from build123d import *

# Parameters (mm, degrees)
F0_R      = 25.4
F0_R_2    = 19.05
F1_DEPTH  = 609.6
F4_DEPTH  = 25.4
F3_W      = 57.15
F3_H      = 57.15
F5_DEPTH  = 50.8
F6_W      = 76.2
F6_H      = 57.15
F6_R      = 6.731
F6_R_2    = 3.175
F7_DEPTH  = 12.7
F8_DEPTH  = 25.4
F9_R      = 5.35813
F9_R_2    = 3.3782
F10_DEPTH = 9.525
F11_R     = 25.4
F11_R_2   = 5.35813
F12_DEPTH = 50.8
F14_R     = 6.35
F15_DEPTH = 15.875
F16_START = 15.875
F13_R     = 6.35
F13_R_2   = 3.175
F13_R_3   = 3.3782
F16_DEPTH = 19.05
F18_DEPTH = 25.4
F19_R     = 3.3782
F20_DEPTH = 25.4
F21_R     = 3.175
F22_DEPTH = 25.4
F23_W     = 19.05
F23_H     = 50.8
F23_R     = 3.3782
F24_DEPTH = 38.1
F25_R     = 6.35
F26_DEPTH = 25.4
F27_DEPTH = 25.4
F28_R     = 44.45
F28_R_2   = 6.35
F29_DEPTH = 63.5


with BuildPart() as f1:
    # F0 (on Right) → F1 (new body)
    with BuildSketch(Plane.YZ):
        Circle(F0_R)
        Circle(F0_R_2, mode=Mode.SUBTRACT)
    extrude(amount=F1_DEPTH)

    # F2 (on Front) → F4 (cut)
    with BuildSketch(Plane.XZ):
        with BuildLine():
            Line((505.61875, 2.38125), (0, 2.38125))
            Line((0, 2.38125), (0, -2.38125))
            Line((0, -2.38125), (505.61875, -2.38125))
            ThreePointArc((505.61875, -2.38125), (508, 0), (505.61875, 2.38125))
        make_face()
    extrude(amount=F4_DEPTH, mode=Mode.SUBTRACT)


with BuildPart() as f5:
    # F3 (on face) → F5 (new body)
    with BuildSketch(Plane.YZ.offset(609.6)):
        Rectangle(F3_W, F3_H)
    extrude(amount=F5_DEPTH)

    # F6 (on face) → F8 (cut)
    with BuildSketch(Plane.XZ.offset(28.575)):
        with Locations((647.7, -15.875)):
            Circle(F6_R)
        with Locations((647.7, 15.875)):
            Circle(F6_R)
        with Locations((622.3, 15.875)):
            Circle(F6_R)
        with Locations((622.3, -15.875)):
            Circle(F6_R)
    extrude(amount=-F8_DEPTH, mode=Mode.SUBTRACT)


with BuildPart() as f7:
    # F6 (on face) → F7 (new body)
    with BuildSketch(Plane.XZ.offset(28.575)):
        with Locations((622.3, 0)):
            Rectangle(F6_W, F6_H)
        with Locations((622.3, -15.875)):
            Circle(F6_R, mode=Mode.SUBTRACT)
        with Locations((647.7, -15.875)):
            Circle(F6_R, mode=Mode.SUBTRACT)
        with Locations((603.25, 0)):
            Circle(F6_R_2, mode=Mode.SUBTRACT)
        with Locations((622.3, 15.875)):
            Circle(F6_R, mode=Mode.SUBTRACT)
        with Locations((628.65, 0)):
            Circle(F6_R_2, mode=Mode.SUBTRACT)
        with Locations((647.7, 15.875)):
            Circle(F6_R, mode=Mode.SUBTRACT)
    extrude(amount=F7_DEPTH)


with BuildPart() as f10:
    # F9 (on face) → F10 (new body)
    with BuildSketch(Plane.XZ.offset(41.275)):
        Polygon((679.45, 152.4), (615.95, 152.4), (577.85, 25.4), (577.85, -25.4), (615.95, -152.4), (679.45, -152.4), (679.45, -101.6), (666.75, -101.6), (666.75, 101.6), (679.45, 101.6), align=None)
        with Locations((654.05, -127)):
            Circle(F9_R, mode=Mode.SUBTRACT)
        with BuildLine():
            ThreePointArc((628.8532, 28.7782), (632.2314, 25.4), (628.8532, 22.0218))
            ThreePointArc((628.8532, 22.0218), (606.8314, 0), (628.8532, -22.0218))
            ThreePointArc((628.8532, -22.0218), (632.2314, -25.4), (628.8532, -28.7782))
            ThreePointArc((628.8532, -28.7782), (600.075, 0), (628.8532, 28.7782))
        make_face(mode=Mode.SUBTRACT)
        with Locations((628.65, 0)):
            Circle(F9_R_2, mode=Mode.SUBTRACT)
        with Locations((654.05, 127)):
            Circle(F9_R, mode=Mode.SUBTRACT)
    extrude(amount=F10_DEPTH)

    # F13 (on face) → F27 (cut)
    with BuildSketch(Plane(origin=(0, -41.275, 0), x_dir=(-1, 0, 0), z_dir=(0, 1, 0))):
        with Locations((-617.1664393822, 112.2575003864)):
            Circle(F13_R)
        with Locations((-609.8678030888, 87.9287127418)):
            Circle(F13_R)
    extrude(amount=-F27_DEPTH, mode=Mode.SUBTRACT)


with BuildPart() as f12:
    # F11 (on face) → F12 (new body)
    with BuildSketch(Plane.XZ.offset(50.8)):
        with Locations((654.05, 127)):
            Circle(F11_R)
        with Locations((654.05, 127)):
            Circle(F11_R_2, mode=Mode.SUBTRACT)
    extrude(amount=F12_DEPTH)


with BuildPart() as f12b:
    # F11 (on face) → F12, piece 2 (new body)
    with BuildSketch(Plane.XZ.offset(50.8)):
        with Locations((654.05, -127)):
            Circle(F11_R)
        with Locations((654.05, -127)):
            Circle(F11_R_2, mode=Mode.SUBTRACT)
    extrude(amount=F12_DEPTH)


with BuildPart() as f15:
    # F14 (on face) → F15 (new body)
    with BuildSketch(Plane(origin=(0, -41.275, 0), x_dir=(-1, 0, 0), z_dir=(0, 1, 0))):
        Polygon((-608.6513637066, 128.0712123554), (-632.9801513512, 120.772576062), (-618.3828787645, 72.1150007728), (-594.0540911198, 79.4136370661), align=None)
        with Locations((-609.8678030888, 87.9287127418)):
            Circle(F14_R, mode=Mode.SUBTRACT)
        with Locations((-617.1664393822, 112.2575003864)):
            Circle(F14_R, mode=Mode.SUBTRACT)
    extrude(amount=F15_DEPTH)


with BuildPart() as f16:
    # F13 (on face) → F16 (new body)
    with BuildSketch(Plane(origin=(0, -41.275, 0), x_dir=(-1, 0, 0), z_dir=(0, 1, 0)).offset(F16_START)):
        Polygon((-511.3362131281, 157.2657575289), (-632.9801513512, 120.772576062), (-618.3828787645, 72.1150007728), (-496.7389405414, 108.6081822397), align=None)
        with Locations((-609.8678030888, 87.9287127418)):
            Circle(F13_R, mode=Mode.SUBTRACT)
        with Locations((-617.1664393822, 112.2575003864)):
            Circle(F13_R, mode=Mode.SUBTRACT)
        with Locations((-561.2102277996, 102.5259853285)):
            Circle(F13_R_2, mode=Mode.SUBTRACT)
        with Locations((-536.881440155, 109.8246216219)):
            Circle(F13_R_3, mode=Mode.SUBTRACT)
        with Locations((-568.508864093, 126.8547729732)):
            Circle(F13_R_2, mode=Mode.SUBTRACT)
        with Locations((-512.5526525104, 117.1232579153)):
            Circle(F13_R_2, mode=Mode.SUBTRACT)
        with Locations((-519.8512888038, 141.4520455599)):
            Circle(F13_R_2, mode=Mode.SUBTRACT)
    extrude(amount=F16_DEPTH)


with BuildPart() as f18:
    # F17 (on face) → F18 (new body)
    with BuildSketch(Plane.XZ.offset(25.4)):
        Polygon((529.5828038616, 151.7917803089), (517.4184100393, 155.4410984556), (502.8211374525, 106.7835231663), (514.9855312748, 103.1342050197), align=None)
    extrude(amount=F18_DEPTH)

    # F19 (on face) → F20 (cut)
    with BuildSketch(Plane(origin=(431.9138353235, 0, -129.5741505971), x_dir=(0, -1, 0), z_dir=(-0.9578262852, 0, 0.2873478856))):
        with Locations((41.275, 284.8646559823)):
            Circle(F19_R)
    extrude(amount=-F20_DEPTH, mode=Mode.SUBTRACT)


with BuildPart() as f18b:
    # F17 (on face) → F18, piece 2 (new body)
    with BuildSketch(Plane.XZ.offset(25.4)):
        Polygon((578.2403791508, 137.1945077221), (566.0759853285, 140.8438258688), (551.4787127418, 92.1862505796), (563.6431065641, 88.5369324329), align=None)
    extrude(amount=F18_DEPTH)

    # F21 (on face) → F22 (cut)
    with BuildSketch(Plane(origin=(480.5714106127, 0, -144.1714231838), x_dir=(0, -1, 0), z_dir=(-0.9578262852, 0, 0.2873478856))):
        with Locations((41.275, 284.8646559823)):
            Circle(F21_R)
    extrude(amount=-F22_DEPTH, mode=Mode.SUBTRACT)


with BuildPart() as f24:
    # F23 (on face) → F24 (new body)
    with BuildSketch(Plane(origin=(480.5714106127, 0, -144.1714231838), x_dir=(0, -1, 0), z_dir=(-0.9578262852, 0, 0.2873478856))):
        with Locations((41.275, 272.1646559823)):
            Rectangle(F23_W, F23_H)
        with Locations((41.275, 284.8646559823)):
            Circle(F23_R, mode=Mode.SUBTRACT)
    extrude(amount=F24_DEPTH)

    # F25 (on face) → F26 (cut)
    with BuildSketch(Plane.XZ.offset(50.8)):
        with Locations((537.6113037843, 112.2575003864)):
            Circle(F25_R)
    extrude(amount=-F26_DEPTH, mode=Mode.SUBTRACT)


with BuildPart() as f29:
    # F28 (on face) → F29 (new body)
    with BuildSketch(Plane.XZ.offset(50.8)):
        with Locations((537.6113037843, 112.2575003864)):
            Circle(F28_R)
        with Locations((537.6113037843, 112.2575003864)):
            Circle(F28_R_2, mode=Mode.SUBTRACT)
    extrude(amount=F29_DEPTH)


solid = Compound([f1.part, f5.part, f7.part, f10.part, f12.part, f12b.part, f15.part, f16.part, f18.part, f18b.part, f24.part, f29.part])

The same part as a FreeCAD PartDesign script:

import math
import FreeCAD as App
import Part
import Sketcher
Q = App.Units.Quantity

doc = App.newDocument("Part")
body = doc.addObject("PartDesign::Body", "Body")

sketch1 = doc.addObject("Sketcher::SketchObject", "Sketch")
body.addObject(sketch1)
sketch1.AttachmentSupport = (doc.YZ_Plane, [""])
sketch1.MapMode = "FlatFace"
sketch1.addGeometry([
    Part.Circle(App.Vector(0, 0, 0), App.Vector(0, 0, 1), 25),
    Part.Circle(App.Vector(0, 0, 0), App.Vector(0, 0, 1), 19),
], False)
sketch1.addConstraint([
    Sketcher.Constraint("Coincident", 0, 3, -1, 1),
    Sketcher.Constraint("Coincident", 1, 3, -1, 1),
    Sketcher.Constraint("Diameter", 0, Q("2 in")),
    Sketcher.Constraint("Diameter", 1, Q("1.5 in")),
])
pad1 = doc.addObject("PartDesign::Pad", "Pad")
body.addObject(pad1)
pad1.Profile = sketch1
pad1.Length = Q("24 in")

sketch2 = doc.addObject("Sketcher::SketchObject", "Sketch001")
body.addObject(sketch2)
sketch2.AttachmentSupport = (doc.XZ_Plane, [""])
sketch2.MapMode = "FlatFace"
sketch2.addGeometry([
    Part.LineSegment(App.Vector(505.6, 2.4, 0), App.Vector(0, 2.4, 0)),
    Part.LineSegment(App.Vector(0, 2.4, 0), App.Vector(0, -2.4, 0)),
    Part.LineSegment(App.Vector(0, -2.4, 0), App.Vector(505.6, -2.4, 0)),
    Part.ArcOfCircle(Part.Circle(App.Vector(505.6, 0, 0), App.Vector(0, 0, 1), 2.4), math.radians(-90), math.radians(90)),
], False)
sketch2.addConstraint([
    Sketcher.Constraint("Coincident", 0, 2, 1, 1),
    Sketcher.Constraint("Coincident", 1, 2, 2, 1),
    Sketcher.Constraint("Tangent", 2, 2, 3, 1),
    Sketcher.Constraint("Tangent", 3, 2, 0, 1),
    Sketcher.Constraint("Horizontal", 0),
    Sketcher.Constraint("Vertical", 1),
    Sketcher.Constraint("Horizontal", 2),
    Sketcher.Constraint("Symmetric", 0, 2, 1, 2, -1, 1),
    Sketcher.Constraint("Radius", 3, Q("0.09375 in")),
    Sketcher.Constraint("DistanceX", 0, 2, 0, 1, Q("19.90625 in")),
])
pocket1 = doc.addObject("PartDesign::Pocket", "Pocket")
body.addObject(pocket1)
pocket1.Profile = sketch2
pocket1.Length = Q("1 in")
pocket1.Reversed = True
body2 = doc.addObject("PartDesign::Body", "Body001")

sketch3 = doc.addObject("Sketcher::SketchObject", "Sketch002")
body2.addObject(sketch3)
sketch3.AttachmentSupport = (doc.getObject("YZ_Plane001"), [""])
sketch3.MapMode = "FlatFace"
sketch3.AttachmentOffset = App.Placement(App.Vector(0, 0, 24 * 25.4), App.Rotation())
sketch3.addGeometry([
    Part.LineSegment(App.Vector(-29, 29, 0), App.Vector(-29, -29, 0)),
    Part.LineSegment(App.Vector(-29, -29, 0), App.Vector(29, -29, 0)),
    Part.LineSegment(App.Vector(29, -29, 0), App.Vector(29, 29, 0)),
    Part.LineSegment(App.Vector(29, 29, 0), App.Vector(-29, 29, 0)),
], False)
sketch3.addConstraint([
    Sketcher.Constraint("Coincident", 0, 2, 1, 1),
    Sketcher.Constraint("Coincident", 1, 2, 2, 1),
    Sketcher.Constraint("Coincident", 2, 2, 3, 1),
    Sketcher.Constraint("Coincident", 3, 2, 0, 1),
    Sketcher.Constraint("Vertical", 0),
    Sketcher.Constraint("Horizontal", 1),
    Sketcher.Constraint("Vertical", 2),
    Sketcher.Constraint("Horizontal", 3),
    Sketcher.Constraint("Symmetric", 0, 2, 2, 2, -1, 1),
    Sketcher.Constraint("Equal", 3, 0),
    Sketcher.Constraint("DistanceX", 1, 1, 1, 2, Q("2.25 in")),
])
pad2 = doc.addObject("PartDesign::Pad", "Pad001")
body2.addObject(pad2)
pad2.Profile = sketch3
pad2.Length = Q("2 in")

sketch4 = doc.addObject("Sketcher::SketchObject", "Sketch003")
body2.addObject(sketch4)
sketch4.AttachmentSupport = (doc.getObject("XZ_Plane001"), [""])
sketch4.MapMode = "FlatFace"
sketch4.AttachmentOffset = App.Placement(App.Vector(0, 0, 1.125 * 25.4), App.Rotation())
sketch4.addGeometry([
    Part.Circle(App.Vector(648, -16, 0), App.Vector(0, 0, 1), 7),
    Part.Circle(App.Vector(648, 16, 0), App.Vector(0, 0, 1), 7),
    Part.Circle(App.Vector(622, 16, 0), App.Vector(0, 0, 1), 7),
    Part.Circle(App.Vector(622, -16, 0), App.Vector(0, 0, 1), 7),
], False)
sketch4.addConstraint([
    Sketcher.Constraint("Equal", 0, 1),
    Sketcher.Constraint("Equal", 1, 2),
    Sketcher.Constraint("Equal", 2, 3),
    Sketcher.Constraint("Symmetric", 0, 3, 1, 3, -1),
    Sketcher.Constraint("Symmetric", 2, 3, 3, 3, -1),
    Sketcher.Constraint("Horizontal", 1, 3, 2, 3),
    Sketcher.Constraint("Diameter", 0, Q("0.53 in")),
    Sketcher.Constraint("DistanceX", 2, 3, 1, 3, Q("1 in")),
    Sketcher.Constraint("DistanceX", -1, 1, 0, 3, Q("25.5 in")),
    Sketcher.Constraint("DistanceY", 0, 3, 1, 3, Q("1.25 in")),
])
pocket2 = doc.addObject("PartDesign::Pocket", "Pocket001")
body2.addObject(pocket2)
pocket2.Profile = sketch4
pocket2.Length = Q("1 in")
body3 = doc.addObject("PartDesign::Body", "Body002")

sketch5 = doc.addObject("Sketcher::SketchObject", "Sketch004")
body3.addObject(sketch5)
sketch5.AttachmentSupport = (doc.getObject("XZ_Plane002"), [""])
sketch5.MapMode = "FlatFace"
sketch5.AttachmentOffset = App.Placement(App.Vector(0, 0, 1.125 * 25.4), App.Rotation())
sketch5.addGeometry([
    Part.LineSegment(App.Vector(584.2, 28.6, 0), App.Vector(584.2, -28.6, 0)),
    Part.LineSegment(App.Vector(584.2, -28.6, 0), App.Vector(660.4, -28.6, 0)),
    Part.LineSegment(App.Vector(660.4, -28.6, 0), App.Vector(660.4, 28.6, 0)),
    Part.LineSegment(App.Vector(660.4, 28.6, 0), App.Vector(584.2, 28.6, 0)),
    Part.Circle(App.Vector(622.3, -15.9, 0), App.Vector(0, 0, 1), 6.7),
    Part.Circle(App.Vector(647.7, -15.9, 0), App.Vector(0, 0, 1), 6.7),
    Part.Circle(App.Vector(603.2, 0, 0), App.Vector(0, 0, 1), 3.2),
    Part.Circle(App.Vector(622.3, 15.9, 0), App.Vector(0, 0, 1), 6.7),
    Part.Circle(App.Vector(628.6, 0, 0), App.Vector(0, 0, 1), 3.2),
    Part.Circle(App.Vector(647.7, 15.9, 0), App.Vector(0, 0, 1), 6.7),
], False)
sketch5.addConstraint([
    Sketcher.Constraint("Coincident", 0, 2, 1, 1),
    Sketcher.Constraint("Coincident", 1, 2, 2, 1),
    Sketcher.Constraint("Coincident", 2, 2, 3, 1),
    Sketcher.Constraint("Coincident", 3, 2, 0, 1),
    Sketcher.Constraint("Vertical", 0),
    Sketcher.Constraint("Horizontal", 1),
    Sketcher.Constraint("Vertical", 2),
    Sketcher.Constraint("Horizontal", 3),
    Sketcher.Constraint("Equal", 4, 5),
    Sketcher.Constraint("Equal", 5, 7),
    Sketcher.Constraint("Equal", 6, 8),
    Sketcher.Constraint("Equal", 7, 9),
    Sketcher.Constraint("Symmetric", 4, 3, 7, 3, -1),
    Sketcher.Constraint("Symmetric", 5, 3, 9, 3, -1),
    Sketcher.Constraint("PointOnObject", 6, 3, -1),
    Sketcher.Constraint("PointOnObject", 8, 3, -1),
    Sketcher.Constraint("Horizontal", 4, 3, 5, 3),
    Sketcher.Constraint("Diameter", 4, Q("0.53 in")),
    Sketcher.Constraint("Diameter", 6, Q("0.25 in")),
    Sketcher.Constraint("DistanceX", 1, 1, 1, 2, Q("3 in")),
    Sketcher.Constraint("DistanceX", -1, 1, 0, 2, Q("23 in")),
    Sketcher.Constraint("DistanceX", 4, 3, 5, 3, Q("1 in")),
    Sketcher.Constraint("DistanceX", 6, 3, 8, 3, Q("1 in")),
    Sketcher.Constraint("DistanceY", 0, 2, 0, 1, Q("2.25 in")),
    Sketcher.Constraint("DistanceX", -1, 1, 4, 3, Q("24.5 in")),
    Sketcher.Constraint("DistanceY", 0, 2, 4, 3, Q("0.5 in")),
    Sketcher.Constraint("DistanceY", 9, 3, 2, 2, Q("0.5 in")),
    Sketcher.Constraint("DistanceX", -1, 1, 6, 3, Q("23.75 in")),
])
pad3 = doc.addObject("PartDesign::Pad", "Pad002")
body3.addObject(pad3)
pad3.Profile = sketch5
pad3.Length = Q("0.5 in")
body4 = doc.addObject("PartDesign::Body", "Body003")

sketch6 = doc.addObject("Sketcher::SketchObject", "Sketch005")
body4.addObject(sketch6)
sketch6.AttachmentSupport = (doc.getObject("XZ_Plane003"), [""])
sketch6.MapMode = "FlatFace"
sketch6.AttachmentOffset = App.Placement(App.Vector(0, 0, 1.625 * 25.4), App.Rotation())
sketch6.addGeometry([
    Part.LineSegment(App.Vector(679.5, 152.4, 0), App.Vector(616, 152.4, 0)),
    Part.LineSegment(App.Vector(616, 152.4, 0), App.Vector(577.9, 25.4, 0)),
    Part.LineSegment(App.Vector(577.9, 25.4, 0), App.Vector(577.9, -25.4, 0)),
    Part.LineSegment(App.Vector(577.9, -25.4, 0), App.Vector(616, -152.4, 0)),
    Part.LineSegment(App.Vector(616, -152.4, 0), App.Vector(679.5, -152.4, 0)),
    Part.LineSegment(App.Vector(679.5, -152.4, 0), App.Vector(679.5, -101.6, 0)),
    Part.LineSegment(App.Vector(679.5, -101.6, 0), App.Vector(666.8, -101.6, 0)),
    Part.LineSegment(App.Vector(666.8, -101.6, 0), App.Vector(666.8, 101.6, 0)),
    Part.LineSegment(App.Vector(666.8, 101.6, 0), App.Vector(679.5, 101.6, 0)),
    Part.LineSegment(App.Vector(679.5, 101.6, 0), App.Vector(679.5, 152.4, 0)),
    Part.Circle(App.Vector(654, -127, 0), App.Vector(0, 0, 1), 5.4),
    Part.ArcOfCircle(Part.Circle(App.Vector(628.9, 0, 0), App.Vector(0, 0, 1), 28.8), math.radians(90), math.radians(270)),
    Part.ArcOfCircle(Part.Circle(App.Vector(628.9, 25.4, 0), App.Vector(0, 0, 1), 3.4), math.radians(-90), math.radians(90)),
    Part.ArcOfCircle(Part.Circle(App.Vector(628.9, 0, 0), App.Vector(0, 0, 1), 22), math.radians(90), math.radians(270)),
    Part.ArcOfCircle(Part.Circle(App.Vector(628.9, -25.4, 0), App.Vector(0, 0, 1), 3.4), math.radians(-90), math.radians(90)),
    Part.Circle(App.Vector(628.6, 0, 0), App.Vector(0, 0, 1), 3.4),
    Part.Circle(App.Vector(654, 127, 0), App.Vector(0, 0, 1), 5.4),
], False)
sketch6.addConstraint([
    Sketcher.Constraint("Coincident", 0, 2, 1, 1),
    Sketcher.Constraint("Coincident", 1, 2, 2, 1),
    Sketcher.Constraint("Coincident", 2, 2, 3, 1),
    Sketcher.Constraint("Coincident", 3, 2, 4, 1),
    Sketcher.Constraint("Coincident", 4, 2, 5, 1),
    Sketcher.Constraint("Coincident", 5, 2, 6, 1),
    Sketcher.Constraint("Coincident", 6, 2, 7, 1),
    Sketcher.Constraint("Coincident", 7, 2, 8, 1),
    Sketcher.Constraint("Coincident", 8, 2, 9, 1),
    Sketcher.Constraint("Coincident", 9, 2, 0, 1),
    Sketcher.Constraint("Tangent", 11, 1, 12, 2),
    Sketcher.Constraint("Tangent", 12, 1, 13, 1),
    Sketcher.Constraint("Tangent", 13, 2, 14, 2),
    Sketcher.Constraint("Tangent", 14, 1, 11, 2),
    Sketcher.Constraint("Horizontal", 0),
    Sketcher.Constraint("Vertical", 2),
    Sketcher.Constraint("Horizontal", 4),
    Sketcher.Constraint("Vertical", 5),
    Sketcher.Constraint("Horizontal", 6),
    Sketcher.Constraint("Vertical", 7),
    Sketcher.Constraint("Horizontal", 8),
    Sketcher.Constraint("Vertical", 9),
    Sketcher.Constraint("Coincident", 13, 3, 11, 3),
    Sketcher.Constraint("Equal", 14, 15),
    Sketcher.Constraint("Equal", 10, 16),
    Sketcher.Constraint("Symmetric", 12, 3, 14, 3, -1),
    Sketcher.Constraint("Symmetric", 10, 3, 16, 3, -1),
    Sketcher.Constraint("Symmetric", 0, 2, 3, 2, -1),
    Sketcher.Constraint("Symmetric", 5, 2, 8, 2, -1),
    Sketcher.Constraint("PointOnObject", 15, 3, -1),
    Sketcher.Constraint("Horizontal", 12, 3, 1, 2),
    Sketcher.Constraint("Horizontal", 14, 3, 2, 2),
    Sketcher.Constraint("Vertical", 11, 3, 12, 3),
    Sketcher.Constraint("Equal", 2, 5),
    Sketcher.Constraint("DistanceY", 2, 2, 2, 1, Q("2 in")),
    Sketcher.Constraint("DistanceY", 7, 1, 7, 2, Q("8 in")),
    Sketcher.Constraint("Diameter", 15, Q("0.266 in")),
    Sketcher.Constraint("DistanceX", 0, 2, 0, 1, Q("2.5 in")),
    Sketcher.Constraint("DistanceX", 6, 2, 6, 1, Q("0.5 in")),
    Sketcher.Constraint("DistanceY", 10, 3, -1, 1, Q("5 in")),
    Sketcher.Constraint("DistanceX", 15, 3, 10, 3, Q("1 in")),
    Sketcher.Constraint("DistanceX", 1, 2, 15, 3, Q("2 in")),
    Sketcher.Constraint("DistanceX", 10, 3, 4, 2, Q("1 in")),
    Sketcher.Constraint("Diameter", 10, Q("0.4219 in")),
    Sketcher.Constraint("DistanceX", -1, 1, 10, 3, Q("25.75 in")),
    Sketcher.Constraint("DistanceX", -1, 1, 11, 3, Q("24.758 in")),
])
pad4 = doc.addObject("PartDesign::Pad", "Pad003")
body4.addObject(pad4)
pad4.Profile = sketch6
pad4.Length = Q("0.375 in")

sketch7 = doc.addObject("Sketcher::SketchObject", "Sketch006")
body4.addObject(sketch7)
sketch7.AttachmentSupport = (doc.getObject("XZ_Plane003"), [""])
sketch7.MapMode = "FlatFace"
sketch7.AttachmentOffset = App.Placement(App.Vector(0, 0, 1.625 * 25.4), App.Rotation())
sketch7.addGeometry([
    Part.Circle(App.Vector(617, 112, 0), App.Vector(0, 0, 1), 6),
    Part.Circle(App.Vector(610, 88, 0), App.Vector(0, 0, 1), 6),
], False)
sketch7.addConstraint([
    Sketcher.Constraint("Equal", 0, 1),
    Sketcher.Constraint("Diameter", 0, Q("0.5 in")),
    Sketcher.Constraint("DistanceY", -1, 1, 0, 3, 112.2575),
    Sketcher.Constraint("DistanceX", -1, 1, 0, 3, 617.166439),
    Sketcher.Constraint("DistanceX", -1, 1, 1, 3, 609.867803),
    Sketcher.Constraint("DistanceY", -1, 1, 1, 3, 87.928713),
])
pocket3 = doc.addObject("PartDesign::Pocket", "Pocket002")
body4.addObject(pocket3)
pocket3.Profile = sketch7
pocket3.Length = Q("1 in")
pocket3.Reversed = True
body5 = doc.addObject("PartDesign::Body", "Body004")

sketch8 = doc.addObject("Sketcher::SketchObject", "Sketch007")
body5.addObject(sketch8)
sketch8.AttachmentSupport = (doc.getObject("XZ_Plane004"), [""])
sketch8.MapMode = "FlatFace"
sketch8.AttachmentOffset = App.Placement(App.Vector(0, 0, 2 * 25.4), App.Rotation())
sketch8.addGeometry([
    Part.Circle(App.Vector(654, 127, 0), App.Vector(0, 0, 1), 25),
    Part.Circle(App.Vector(654, 127, 0), App.Vector(0, 0, 1), 5),
], False)
sketch8.addConstraint([
    Sketcher.Constraint("Coincident", 1, 3, 0, 3),
    Sketcher.Constraint("Diameter", 0, Q("2 in")),
    Sketcher.Constraint("DistanceY", -1, 1, 0, 3, Q("5 in")),
    Sketcher.Constraint("Diameter", 1, Q("0.4219 in")),
    Sketcher.Constraint("DistanceX", -1, 1, 0, 3, Q("25.75 in")),
])
pad5 = doc.addObject("PartDesign::Pad", "Pad004")
body5.addObject(pad5)
pad5.Profile = sketch8
pad5.Length = Q("2 in")
body6 = doc.addObject("PartDesign::Body", "Body005")

sketch9 = doc.addObject("Sketcher::SketchObject", "Sketch008")
body6.addObject(sketch9)
sketch9.AttachmentSupport = (doc.getObject("XZ_Plane005"), [""])
sketch9.MapMode = "FlatFace"
sketch9.AttachmentOffset = App.Placement(App.Vector(0, 0, 2 * 25.4), App.Rotation())
sketch9.addGeometry([
    Part.Circle(App.Vector(654, -127, 0), App.Vector(0, 0, 1), 25),
    Part.Circle(App.Vector(654, -127, 0), App.Vector(0, 0, 1), 5),
], False)
sketch9.addConstraint([
    Sketcher.Constraint("Coincident", 1, 3, 0, 3),
    Sketcher.Constraint("Diameter", 0, Q("2 in")),
    Sketcher.Constraint("DistanceY", 0, 3, -1, 1, Q("5 in")),
    Sketcher.Constraint("Diameter", 1, Q("0.4219 in")),
    Sketcher.Constraint("DistanceX", -1, 1, 0, 3, Q("25.75 in")),
])
pad6 = doc.addObject("PartDesign::Pad", "Pad005")
body6.addObject(pad6)
pad6.Profile = sketch9
pad6.Length = Q("2 in")
body7 = doc.addObject("PartDesign::Body", "Body006")

sketch10 = doc.addObject("Sketcher::SketchObject", "Sketch009")
body7.addObject(sketch10)
sketch10.AttachmentSupport = (doc.getObject("XZ_Plane006"), [""])
sketch10.MapMode = "FlatFace"
sketch10.AttachmentOffset = App.Placement(App.Vector(0, 0, 1.625 * 25.4), App.Rotation())
sketch10.addGeometry([
    Part.LineSegment(App.Vector(609, 128, 0), App.Vector(633, 121, 0)),
    Part.LineSegment(App.Vector(633, 121, 0), App.Vector(618, 72, 0)),
    Part.LineSegment(App.Vector(618, 72, 0), App.Vector(594, 79, 0)),
    Part.LineSegment(App.Vector(594, 79, 0), App.Vector(609, 128, 0)),
    Part.Circle(App.Vector(610, 88, 0), App.Vector(0, 0, 1), 6),
    Part.Circle(App.Vector(617, 112, 0), App.Vector(0, 0, 1), 6),
], False)
sketch10.addConstraint([
    Sketcher.Constraint("Coincident", 0, 2, 1, 1),
    Sketcher.Constraint("Coincident", 1, 2, 2, 1),
    Sketcher.Constraint("Coincident", 2, 2, 3, 1),
    Sketcher.Constraint("Coincident", 3, 2, 0, 1),
    Sketcher.Constraint("Equal", 4, 5),
    Sketcher.Constraint("Perpendicular", 0, 1),
    Sketcher.Constraint("Perpendicular", 1, 2),
    Sketcher.Constraint("Perpendicular", 2, 3),
    Sketcher.Constraint("Diameter", 4, Q("0.5 in")),
    Sketcher.Constraint("Distance", 0, Q("1 in")),
    Sketcher.Constraint("Distance", 1, Q("2 in")),
    Sketcher.Constraint("DistanceY", -1, 1, 5, 3, 112.2575),
    Sketcher.Constraint("DistanceY", -1, 1, 1, 2, 72.115001),
    Sketcher.Constraint("DistanceY", 4, 3, 3, 2, 40.1425),
    Sketcher.Constraint("DistanceX", -1, 1, 5, 3, 617.166439),
    Sketcher.Constraint("DistanceX", -1, 1, 0, 2, 632.980151),
    Sketcher.Constraint("DistanceX", -1, 1, 1, 2, 618.382879),
    Sketcher.Constraint("DistanceX", 4, 3, 0, 2, 23.112348),
])
pad7 = doc.addObject("PartDesign::Pad", "Pad006")
body7.addObject(pad7)
pad7.Profile = sketch10
pad7.Length = Q("0.625 in")
pad7.Reversed = True
body8 = doc.addObject("PartDesign::Body", "Body007")

sketch11 = doc.addObject("Sketcher::SketchObject", "Sketch010")
body8.addObject(sketch11)
sketch11.AttachmentSupport = (doc.getObject("XZ_Plane007"), [""])
sketch11.MapMode = "FlatFace"
sketch11.AttachmentOffset = App.Placement(App.Vector(0, 0, 1 * 25.4), App.Rotation())
sketch11.addGeometry([
    Part.LineSegment(App.Vector(511.3, 157.3, 0), App.Vector(633, 120.8, 0)),
    Part.LineSegment(App.Vector(633, 120.8, 0), App.Vector(618.4, 72.1, 0)),
    Part.LineSegment(App.Vector(618.4, 72.1, 0), App.Vector(496.7, 108.6, 0)),
    Part.LineSegment(App.Vector(496.7, 108.6, 0), App.Vector(511.3, 157.3, 0)),
    Part.Circle(App.Vector(609.9, 87.9, 0), App.Vector(0, 0, 1), 6.3),
    Part.Circle(App.Vector(617.2, 112.3, 0), App.Vector(0, 0, 1), 6.3),
    Part.Circle(App.Vector(561.2, 102.5, 0), App.Vector(0, 0, 1), 3.2),
    Part.Circle(App.Vector(536.9, 109.8, 0), App.Vector(0, 0, 1), 3.4),
    Part.Circle(App.Vector(568.5, 126.9, 0), App.Vector(0, 0, 1), 3.2),
    Part.Circle(App.Vector(512.6, 117.1, 0), App.Vector(0, 0, 1), 3.2),
    Part.Circle(App.Vector(519.9, 141.5, 0), App.Vector(0, 0, 1), 3.2),
], False)
sketch11.addConstraint([
    Sketcher.Constraint("Coincident", 0, 2, 1, 1),
    Sketcher.Constraint("Coincident", 1, 2, 2, 1),
    Sketcher.Constraint("Coincident", 2, 2, 3, 1),
    Sketcher.Constraint("Coincident", 3, 2, 0, 1),
    Sketcher.Constraint("Equal", 4, 5),
    Sketcher.Constraint("Equal", 6, 8),
    Sketcher.Constraint("Equal", 8, 9),
    Sketcher.Constraint("Equal", 9, 10),
    Sketcher.Constraint("Perpendicular", 0, 1),
    Sketcher.Constraint("Perpendicular", 1, 2),
    Sketcher.Constraint("Perpendicular", 2, 3),
    Sketcher.Constraint("Diameter", 4, Q("0.5 in")),
    Sketcher.Constraint("Diameter", 6, Q("0.25 in")),
    Sketcher.Constraint("Distance", 0, Q("5 in")),
    Sketcher.Constraint("Distance", 1, Q("2 in")),
    Sketcher.Constraint("Diameter", 7, Q("0.266 in")),
    Sketcher.Constraint("DistanceY", -1, 1, 5, 3, 112.2575),
    Sketcher.Constraint("DistanceY", -1, 1, 1, 2, 72.115001),
    Sketcher.Constraint("DistanceX", 7, 3, 5, 3, 80.284999),
    Sketcher.Constraint("DistanceX", 2, 2, 7, 3, 40.1425),
    Sketcher.Constraint("DistanceY", 9, 3, 3, 2, 40.1425),
    Sketcher.Constraint("DistanceX", -1, 1, 5, 3, 617.166439),
    Sketcher.Constraint("DistanceY", -1, 1, 7, 3, 109.824622),
    Sketcher.Constraint("DistanceX", -1, 1, 10, 3, 519.851289),
    Sketcher.Constraint("DistanceX", -1, 1, 0, 2, 632.980151),
    Sketcher.Constraint("DistanceX", 6, 3, 5, 3, 55.956212),
    Sketcher.Constraint("DistanceY", 4, 3, 7, 3, 21.895909),
    Sketcher.Constraint("DistanceY", 7, 3, 8, 3, 17.030151),
    Sketcher.Constraint("DistanceX", 8, 3, 4, 3, 41.358939),
    Sketcher.Constraint("DistanceX", 9, 3, 8, 3, 55.956212),
    Sketcher.Constraint("DistanceY", 6, 3, 10, 3, 38.92606),
    Sketcher.Constraint("DistanceX", 4, 3, 0, 2, 23.112348),
    Sketcher.Constraint("DistanceY", 6, 3, 0, 2, 18.246591),
])
pad8 = doc.addObject("PartDesign::Pad", "Pad007")
body8.addObject(pad8)
pad8.Profile = sketch11
pad8.Length = Q("0.75 in")
pad8.Reversed = True
body9 = doc.addObject("PartDesign::Body", "Body008")

sketch12 = doc.addObject("Sketcher::SketchObject", "Sketch011")
body9.addObject(sketch12)
sketch12.AttachmentSupport = (doc.getObject("XZ_Plane008"), [""])
sketch12.MapMode = "FlatFace"
sketch12.AttachmentOffset = App.Placement(App.Vector(0, 0, 1 * 25.4), App.Rotation())
sketch12.addGeometry([
    Part.LineSegment(App.Vector(530, 152, 0), App.Vector(517, 155, 0)),
    Part.LineSegment(App.Vector(517, 155, 0), App.Vector(503, 107, 0)),
    Part.LineSegment(App.Vector(503, 107, 0), App.Vector(515, 103, 0)),
    Part.LineSegment(App.Vector(515, 103, 0), App.Vector(530, 152, 0)),
], False)
sketch12.addConstraint([
    Sketcher.Constraint("Coincident", 0, 2, 1, 1),
    Sketcher.Constraint("Coincident", 1, 2, 2, 1),
    Sketcher.Constraint("Coincident", 2, 2, 3, 1),
    Sketcher.Constraint("Coincident", 3, 2, 0, 1),
    Sketcher.Constraint("Perpendicular", 0, 1),
    Sketcher.Constraint("Perpendicular", 1, 2),
    Sketcher.Constraint("Perpendicular", 2, 3),
    Sketcher.Constraint("Distance", 1, Q("2 in")),
    Sketcher.Constraint("Distance", 0, Q("0.5 in")),
    Sketcher.Constraint("DistanceY", -1, 1, 0, 2, 155.441098),
    Sketcher.Constraint("DistanceX", -1, 1, 0, 2, 517.41841),
    Sketcher.Constraint("DistanceX", -1, 1, 2, 2, 514.985531),
])
pad9 = doc.addObject("PartDesign::Pad", "Pad008")
body9.addObject(pad9)
pad9.Profile = sketch12
pad9.Length = Q("1 in")

sketch13 = doc.addObject("Sketcher::SketchObject", "Sketch012")
body9.addObject(sketch13)
sketch13.Placement = App.Placement(App.Vector(431.913835, 0, -129.574151), App.Rotation(App.Vector(0, -1, 0), App.Vector(0.287347886, 0, 0.957826285), App.Vector(-0.957826285, 0, 0.287347886), "ZXY"))
sketch13.addGeometry(Part.Circle(App.Vector(41.3, 284.9, 0), App.Vector(0, 0, 1), 3.4), False)
sketch13.addConstraint([
    Sketcher.Constraint("Diameter", 0, Q("0.266 in")),
    Sketcher.Constraint("DistanceX", -1, 1, 0, 3, Q("1.625 in")),
    Sketcher.Constraint("DistanceY", -1, 1, 0, 3, 284.864656),
])
pocket4 = doc.addObject("PartDesign::Pocket", "Pocket003")
body9.addObject(pocket4)
pocket4.Profile = sketch13
pocket4.Length = Q("1 in")
body10 = doc.addObject("PartDesign::Body", "Body009")

sketch14 = doc.addObject("Sketcher::SketchObject", "Sketch013")
body10.addObject(sketch14)
sketch14.AttachmentSupport = (doc.getObject("XZ_Plane009"), [""])
sketch14.MapMode = "FlatFace"
sketch14.AttachmentOffset = App.Placement(App.Vector(0, 0, 1 * 25.4), App.Rotation())
sketch14.addGeometry([
    Part.LineSegment(App.Vector(578, 137, 0), App.Vector(566, 141, 0)),
    Part.LineSegment(App.Vector(566, 141, 0), App.Vector(551, 92, 0)),
    Part.LineSegment(App.Vector(551, 92, 0), App.Vector(564, 89, 0)),
    Part.LineSegment(App.Vector(564, 89, 0), App.Vector(578, 137, 0)),
], False)
sketch14.addConstraint([
    Sketcher.Constraint("Coincident", 0, 2, 1, 1),
    Sketcher.Constraint("Coincident", 1, 2, 2, 1),
    Sketcher.Constraint("Coincident", 2, 2, 3, 1),
    Sketcher.Constraint("Coincident", 3, 2, 0, 1),
    Sketcher.Constraint("Perpendicular", 0, 1),
    Sketcher.Constraint("Perpendicular", 1, 2),
    Sketcher.Constraint("Perpendicular", 2, 3),
    Sketcher.Constraint("Distance", 1, Q("2 in")),
    Sketcher.Constraint("Distance", 0, Q("0.5 in")),
    Sketcher.Constraint("DistanceY", -1, 1, 1, 2, 92.186251),
    Sketcher.Constraint("DistanceX", -1, 1, 3, 2, 578.240379),
    Sketcher.Constraint("DistanceY", 2, 2, 1, 2, 3.649318),
])
pad10 = doc.addObject("PartDesign::Pad", "Pad009")
body10.addObject(pad10)
pad10.Profile = sketch14
pad10.Length = Q("1 in")

sketch15 = doc.addObject("Sketcher::SketchObject", "Sketch014")
body10.addObject(sketch15)
sketch15.Placement = App.Placement(App.Vector(480.571411, 0, -144.171423), App.Rotation(App.Vector(0, -1, 0), App.Vector(0.287347886, 0, 0.957826285), App.Vector(-0.957826285, 0, 0.287347886), "ZXY"))
sketch15.addGeometry(Part.Circle(App.Vector(41.3, 284.9, 0), App.Vector(0, 0, 1), 3.2), False)
sketch15.addConstraint([
    Sketcher.Constraint("Diameter", 0, Q("0.25 in")),
    Sketcher.Constraint("DistanceX", -1, 1, 0, 3, Q("1.625 in")),
    Sketcher.Constraint("DistanceY", -1, 1, 0, 3, 284.864656),
])
pocket5 = doc.addObject("PartDesign::Pocket", "Pocket004")
body10.addObject(pocket5)
pocket5.Profile = sketch15
pocket5.Length = Q("1 in")
body11 = doc.addObject("PartDesign::Body", "Body010")

sketch16 = doc.addObject("Sketcher::SketchObject", "Sketch015")
body11.addObject(sketch16)
sketch16.Placement = App.Placement(App.Vector(480.571411, 0, -144.171423), App.Rotation(App.Vector(0, -1, 0), App.Vector(0.287347886, 0, 0.957826285), App.Vector(-0.957826285, 0, 0.287347886), "ZXY"))
sketch16.addGeometry([
    Part.LineSegment(App.Vector(31.8, 297.6, 0), App.Vector(31.8, 246.8, 0)),
    Part.LineSegment(App.Vector(31.8, 246.8, 0), App.Vector(50.8, 246.8, 0)),
    Part.LineSegment(App.Vector(50.8, 246.8, 0), App.Vector(50.8, 297.6, 0)),
    Part.LineSegment(App.Vector(50.8, 297.6, 0), App.Vector(31.8, 297.6, 0)),
    Part.Circle(App.Vector(41.3, 284.9, 0), App.Vector(0, 0, 1), 3.4),
], False)
sketch16.addConstraint([
    Sketcher.Constraint("Coincident", 0, 2, 1, 1),
    Sketcher.Constraint("Coincident", 1, 2, 2, 1),
    Sketcher.Constraint("Coincident", 2, 2, 3, 1),
    Sketcher.Constraint("Coincident", 3, 2, 0, 1),
    Sketcher.Constraint("Vertical", 0),
    Sketcher.Constraint("Horizontal", 1),
    Sketcher.Constraint("Vertical", 2),
    Sketcher.Constraint("Horizontal", 3),
    Sketcher.Constraint("DistanceY", 0, 2, 0, 1, Q("2 in")),
    Sketcher.Constraint("Diameter", 4, Q("0.266 in")),
    Sketcher.Constraint("DistanceX", -1, 1, 1, 2, Q("2 in")),
    Sketcher.Constraint("DistanceX", 1, 1, 1, 2, Q("0.75 in")),
    Sketcher.Constraint("DistanceY", 0, 2, 4, 3, Q("1.5 in")),
    Sketcher.Constraint("DistanceX", -1, 1, 4, 3, Q("1.625 in")),
    Sketcher.Constraint("DistanceY", -1, 1, 4, 3, 284.864656),
])
pad11 = doc.addObject("PartDesign::Pad", "Pad010")
body11.addObject(pad11)
pad11.Profile = sketch16
pad11.Length = Q("1.5 in")

sketch17 = doc.addObject("Sketcher::SketchObject", "Sketch016")
body11.addObject(sketch17)
sketch17.AttachmentSupport = (doc.getObject("XZ_Plane010"), [""])
sketch17.MapMode = "FlatFace"
sketch17.AttachmentOffset = App.Placement(App.Vector(0, 0, 2 * 25.4), App.Rotation())
sketch17.addGeometry(Part.Circle(App.Vector(538, 112, 0), App.Vector(0, 0, 1), 6), False)
sketch17.addConstraint([
    Sketcher.Constraint("Diameter", 0, Q("0.5 in")),
    Sketcher.Constraint("DistanceY", -1, 1, 0, 3, 112.2575),
    Sketcher.Constraint("DistanceX", -1, 1, 0, 3, 537.611304),
])
pocket6 = doc.addObject("PartDesign::Pocket", "Pocket005")
body11.addObject(pocket6)
pocket6.Profile = sketch17
pocket6.Length = Q("1 in")
body12 = doc.addObject("PartDesign::Body", "Body011")

sketch18 = doc.addObject("Sketcher::SketchObject", "Sketch017")
body12.addObject(sketch18)
sketch18.AttachmentSupport = (doc.getObject("XZ_Plane011"), [""])
sketch18.MapMode = "FlatFace"
sketch18.AttachmentOffset = App.Placement(App.Vector(0, 0, 2 * 25.4), App.Rotation())
sketch18.addGeometry([
    Part.Circle(App.Vector(538, 112, 0), App.Vector(0, 0, 1), 44),
    Part.Circle(App.Vector(538, 112, 0), App.Vector(0, 0, 1), 6),
], False)
sketch18.addConstraint([
    Sketcher.Constraint("Coincident", 1, 3, 0, 3),
    Sketcher.Constraint("Diameter", 0, Q("3.5 in")),
    Sketcher.Constraint("Diameter", 1, Q("0.5 in")),
    Sketcher.Constraint("DistanceY", -1, 1, 0, 3, 112.2575),
    Sketcher.Constraint("DistanceX", -1, 1, 0, 3, 537.611304),
])
pad12 = doc.addObject("PartDesign::Pad", "Pad011")
body12.addObject(pad12)
pad12.Profile = sketch18
pad12.Length = Q("2.5 in")

doc.recompute()
